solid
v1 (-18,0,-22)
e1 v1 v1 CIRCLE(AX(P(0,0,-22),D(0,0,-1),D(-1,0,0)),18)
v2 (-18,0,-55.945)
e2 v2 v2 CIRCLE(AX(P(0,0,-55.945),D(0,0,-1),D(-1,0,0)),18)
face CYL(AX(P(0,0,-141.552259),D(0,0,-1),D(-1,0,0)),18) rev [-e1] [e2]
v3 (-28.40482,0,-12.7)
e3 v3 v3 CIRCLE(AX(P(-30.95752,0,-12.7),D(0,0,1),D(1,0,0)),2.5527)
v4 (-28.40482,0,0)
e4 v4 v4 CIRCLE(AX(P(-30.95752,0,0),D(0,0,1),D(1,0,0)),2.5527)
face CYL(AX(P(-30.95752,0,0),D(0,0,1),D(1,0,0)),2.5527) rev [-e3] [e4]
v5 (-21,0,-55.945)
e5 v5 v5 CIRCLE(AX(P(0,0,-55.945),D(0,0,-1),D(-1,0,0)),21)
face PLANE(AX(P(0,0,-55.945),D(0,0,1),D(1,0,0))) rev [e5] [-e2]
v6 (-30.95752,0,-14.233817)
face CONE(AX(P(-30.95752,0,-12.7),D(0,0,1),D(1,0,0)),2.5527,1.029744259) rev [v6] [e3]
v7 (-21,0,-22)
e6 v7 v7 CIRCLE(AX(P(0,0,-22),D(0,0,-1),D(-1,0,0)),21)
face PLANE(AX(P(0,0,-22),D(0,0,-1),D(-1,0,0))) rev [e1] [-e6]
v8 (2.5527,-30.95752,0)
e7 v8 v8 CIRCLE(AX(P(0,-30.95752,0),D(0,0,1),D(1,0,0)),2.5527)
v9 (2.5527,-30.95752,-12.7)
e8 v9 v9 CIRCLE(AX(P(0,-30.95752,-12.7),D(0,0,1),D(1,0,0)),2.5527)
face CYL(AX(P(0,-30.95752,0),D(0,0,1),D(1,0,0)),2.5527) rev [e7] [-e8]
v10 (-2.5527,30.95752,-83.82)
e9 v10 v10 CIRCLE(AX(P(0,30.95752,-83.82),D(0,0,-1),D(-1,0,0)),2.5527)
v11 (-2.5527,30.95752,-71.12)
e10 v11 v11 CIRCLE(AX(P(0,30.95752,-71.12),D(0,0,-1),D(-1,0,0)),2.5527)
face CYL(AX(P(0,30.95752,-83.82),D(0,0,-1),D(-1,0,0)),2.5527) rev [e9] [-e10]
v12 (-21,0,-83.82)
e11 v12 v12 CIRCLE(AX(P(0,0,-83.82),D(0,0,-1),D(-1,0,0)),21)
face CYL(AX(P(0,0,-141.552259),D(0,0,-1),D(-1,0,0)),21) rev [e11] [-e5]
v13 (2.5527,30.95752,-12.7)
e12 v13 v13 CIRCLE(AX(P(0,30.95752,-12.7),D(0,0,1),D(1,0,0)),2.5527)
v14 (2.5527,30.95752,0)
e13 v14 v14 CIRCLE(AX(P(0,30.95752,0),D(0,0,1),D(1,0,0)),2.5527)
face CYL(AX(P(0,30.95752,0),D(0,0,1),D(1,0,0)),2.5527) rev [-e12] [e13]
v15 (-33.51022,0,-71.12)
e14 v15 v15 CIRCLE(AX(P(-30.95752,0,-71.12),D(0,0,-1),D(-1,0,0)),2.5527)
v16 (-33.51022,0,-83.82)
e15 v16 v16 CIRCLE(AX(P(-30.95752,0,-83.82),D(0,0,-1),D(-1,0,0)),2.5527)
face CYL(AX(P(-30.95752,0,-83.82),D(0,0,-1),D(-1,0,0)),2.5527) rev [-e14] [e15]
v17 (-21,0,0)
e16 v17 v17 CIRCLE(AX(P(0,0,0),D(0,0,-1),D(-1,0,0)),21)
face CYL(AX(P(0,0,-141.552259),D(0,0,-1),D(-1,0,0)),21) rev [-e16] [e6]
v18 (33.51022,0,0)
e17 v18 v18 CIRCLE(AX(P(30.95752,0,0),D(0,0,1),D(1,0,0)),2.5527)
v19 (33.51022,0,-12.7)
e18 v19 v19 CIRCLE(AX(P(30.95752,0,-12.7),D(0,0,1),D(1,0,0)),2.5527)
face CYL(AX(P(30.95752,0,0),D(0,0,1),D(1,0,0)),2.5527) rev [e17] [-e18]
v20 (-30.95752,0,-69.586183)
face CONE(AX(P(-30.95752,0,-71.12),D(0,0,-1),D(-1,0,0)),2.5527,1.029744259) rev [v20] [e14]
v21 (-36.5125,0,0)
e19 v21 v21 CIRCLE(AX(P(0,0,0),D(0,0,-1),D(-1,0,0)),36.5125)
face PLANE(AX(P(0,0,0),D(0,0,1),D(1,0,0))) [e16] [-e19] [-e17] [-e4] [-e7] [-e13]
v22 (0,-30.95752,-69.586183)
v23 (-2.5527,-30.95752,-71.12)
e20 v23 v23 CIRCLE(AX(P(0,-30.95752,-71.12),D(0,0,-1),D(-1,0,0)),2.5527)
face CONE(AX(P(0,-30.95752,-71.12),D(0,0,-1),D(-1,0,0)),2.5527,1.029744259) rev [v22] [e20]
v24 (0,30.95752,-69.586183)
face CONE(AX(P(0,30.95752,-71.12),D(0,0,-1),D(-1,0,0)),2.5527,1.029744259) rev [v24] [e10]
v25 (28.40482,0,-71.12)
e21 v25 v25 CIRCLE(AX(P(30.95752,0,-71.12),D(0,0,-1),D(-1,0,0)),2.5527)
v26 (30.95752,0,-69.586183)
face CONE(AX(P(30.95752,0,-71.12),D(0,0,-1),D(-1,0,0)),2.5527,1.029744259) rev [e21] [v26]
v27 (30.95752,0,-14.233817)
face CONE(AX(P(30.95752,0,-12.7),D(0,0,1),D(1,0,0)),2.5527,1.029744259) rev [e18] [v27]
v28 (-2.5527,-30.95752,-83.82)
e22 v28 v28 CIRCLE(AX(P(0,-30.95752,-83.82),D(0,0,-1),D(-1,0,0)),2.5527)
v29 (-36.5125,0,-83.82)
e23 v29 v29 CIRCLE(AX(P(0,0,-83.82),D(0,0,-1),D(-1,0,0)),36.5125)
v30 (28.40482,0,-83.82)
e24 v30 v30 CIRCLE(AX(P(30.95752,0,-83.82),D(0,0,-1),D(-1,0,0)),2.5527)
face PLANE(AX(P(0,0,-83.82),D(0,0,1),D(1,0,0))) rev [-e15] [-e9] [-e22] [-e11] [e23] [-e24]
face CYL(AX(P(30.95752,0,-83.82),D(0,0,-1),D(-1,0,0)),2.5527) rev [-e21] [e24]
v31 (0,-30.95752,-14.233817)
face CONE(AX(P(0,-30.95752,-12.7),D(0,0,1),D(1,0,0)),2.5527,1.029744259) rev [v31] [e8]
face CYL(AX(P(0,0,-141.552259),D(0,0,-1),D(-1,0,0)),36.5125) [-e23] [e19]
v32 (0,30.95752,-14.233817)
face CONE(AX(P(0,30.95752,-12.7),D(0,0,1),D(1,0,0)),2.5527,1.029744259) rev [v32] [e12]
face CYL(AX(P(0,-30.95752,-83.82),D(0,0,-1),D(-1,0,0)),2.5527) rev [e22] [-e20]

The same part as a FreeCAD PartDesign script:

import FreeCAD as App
import Part
import Sketcher
from FreeCAD import Vector
Q = App.Units.Quantity

doc = App.newDocument("Part")
body = doc.addObject("PartDesign::Body", "Body")

# Sketch on YZ plane
sketch1 = doc.addObject("Sketcher::SketchObject", "Sketch")
body.addObject(sketch1)
sketch1.AttachmentSupport = (doc.YZ_Plane, [""])
sketch1.MapMode = "FlatFace"
sketch1.addGeometry([
    Part.LineSegment(Vector(36.5, -83.8, 0), Vector(36.5, 0, 0)),  # 0
    Part.LineSegment(Vector(36.5, 0, 0), Vector(21, 0, 0)),  # 1
    Part.LineSegment(Vector(21, 0, 0), Vector(21, -22, 0)),  # 2
    Part.LineSegment(Vector(21, -22, 0), Vector(18, -22, 0)),  # 3
    Part.LineSegment(Vector(18, -22, 0), Vector(18, -55.9, 0)),  # 4
    Part.LineSegment(Vector(18, -55.9, 0), Vector(21, -55.9, 0)),  # 5
    Part.LineSegment(Vector(21, -55.9, 0), Vector(21, -83.8, 0)),  # 6
    Part.LineSegment(Vector(21, -83.8, 0), Vector(36.5, -83.8, 0)),  # 7
], False)
sketch1.addConstraint([
    Sketcher.Constraint("Coincident", 0, 2, 1, 1),
    Sketcher.Constraint("Coincident", 1, 2, 2, 1),
    Sketcher.Constraint("Coincident", 2, 2, 3, 1),
    Sketcher.Constraint("Coincident", 3, 2, 4, 1),
    Sketcher.Constraint("Coincident", 4, 2, 5, 1),
    Sketcher.Constraint("Coincident", 5, 2, 6, 1),
    Sketcher.Constraint("Coincident", 6, 2, 7, 1),
    Sketcher.Constraint("Coincident", 7, 2, 0, 1),
    Sketcher.Constraint("Vertical", 0),
    Sketcher.Constraint("Horizontal", 1),
    Sketcher.Constraint("Vertical", 2),
    Sketcher.Constraint("Horizontal", 3),
    Sketcher.Constraint("Vertical", 4),
    Sketcher.Constraint("Horizontal", 5),
    Sketcher.Constraint("Vertical", 6),
    Sketcher.Constraint("Horizontal", 7),
    Sketcher.Constraint("PointOnObject", 0, 2, -1),
    Sketcher.Constraint("Vertical", 2, 2, 5, 2),
    Sketcher.Constraint("DistanceX", 3, 2, 3, 1, Q("3 mm")),
    Sketcher.Constraint("DistanceY", 2, 2, 2, 1, Q("22 mm")),
    Sketcher.Constraint("DistanceX", -1, 1, 1, 2, Q("21 mm")),
    Sketcher.Constraint("DistanceY", 0, 1, 0, 2, Q("83.82 mm")),
    Sketcher.Constraint("DistanceY", 4, 2, 4, 1, Q("33.945 mm")),
    Sketcher.Constraint("DistanceX", 1, 2, 1, 1, Q("15.5125 mm")),
])
revolution = doc.addObject("PartDesign::Revolution", "Revolution")
body.addObject(revolution)
revolution.Profile = sketch1
revolution.ReferenceAxis = (sketch1, ["V_Axis"])
revolution.Angle = 360

# Sketch on YZ plane
sketch2 = doc.addObject("Sketcher::SketchObject", "Sketch001")
body.addObject(sketch2)
sketch2.AttachmentSupport = (doc.YZ_Plane, [""])
sketch2.MapMode = "FlatFace"
sketch2.addGeometry([
    Part.LineSegment(Vector(31, -14.2, 0), Vector(31, 0, 0)),
    Part.LineSegment(Vector(31, 0, 0), Vector(28.4, 0, 0)),
    Part.LineSegment(Vector(28.4, 0, 0), Vector(28.4, -12.7, 0)),
    Part.LineSegment(Vector(28.4, -12.7, 0), Vector(31, -14.2, 0)),
], False)
sketch2.addGeometry(Part.LineSegment(Vector(31, 0, 0), Vector(31, -14.2, 0)), True)  # axis
sketch2.addConstraint([
    Sketcher.Constraint("Coincident", 0, 2, 1, 1),
    Sketcher.Constraint("Coincident", 1, 2, 2, 1),
    Sketcher.Constraint("Coincident", 2, 2, 3, 1),
    Sketcher.Constraint("Coincident", 3, 2, 0, 1),
    Sketcher.Constraint("Vertical", 0),
    Sketcher.Constraint("Horizontal", 1),
    Sketcher.Constraint("Vertical", 2),
    Sketcher.Constraint("Vertical", 4),
    Sketcher.Constraint("Coincident", 4, 1, 0, 2),
    Sketcher.Constraint("PointOnObject", 0, 2, -1),
    Sketcher.Constraint("Equal", 0, 4),
    Sketcher.Constraint("Angle", 3, Q("-31 deg")),
    Sketcher.Constraint("DistanceY", 2, 2, 2, 1, Q("12.7 mm")),
    Sketcher.Constraint("DistanceX", 1, 2, 1, 1, Q("2.5527 mm")),
    Sketcher.Constraint("DistanceX", -1, 1, 0, 2, Q("30.95752 mm")),
])
groove = doc.addObject("PartDesign::Groove", "Groove")
body.addObject(groove)
groove.Profile = sketch2
groove.ReferenceAxis = (sketch2, ["Axis0"])
groove.Angle = 360
doc.recompute()

datumline = doc.addObject("PartDesign::Line", "DatumLine")
body.addObject(datumline)
datumline.Placement = App.Placement(Vector(0, 0, 0), App.Rotation(Vector(0, 0, 1), Vector(0.707106781, -0.707106781, 0)))
linearpattern = doc.addObject("PartDesign::LinearPattern", "LinearPattern")
body.addObject(linearpattern)
linearpattern.Originals = [groove]
linearpattern.Direction = (datumline, [""])
linearpattern.Mode = "offset"
linearpattern.Offset = 43.780545
linearpattern.Occurrences = 2
body.Tip = linearpattern
doc.recompute()

linearpattern2 = doc.addObject("PartDesign::LinearPattern", "LinearPattern001")
body.addObject(linearpattern2)
linearpattern2.Originals = [groove]
linearpattern2.Direction = (doc.Y_Axis, [""])
linearpattern2.Mode = "offset"
linearpattern2.Offset = 61.91504
linearpattern2.Occurrences = 2
linearpattern2.Reversed = True
body.Tip = linearpattern2
doc.recompute()

datumline2 = doc.addObject("PartDesign::Line", "DatumLine001")
body.addObject(datumline2)
datumline2.Placement = App.Placement(Vector(0, 0, 0), App.Rotation(Vector(0, 0, 1), Vector(-0.707106781, -0.707106781, 0)))
linearpattern3 = doc.addObject("PartDesign::LinearPattern", "LinearPattern002")
body.addObject(linearpattern3)
linearpattern3.Originals = [groove]
linearpattern3.Direction = (datumline2, [""])
linearpattern3.Mode = "offset"
linearpattern3.Offset = 43.780545
linearpattern3.Occurrences = 2
body.Tip = linearpattern3
doc.recompute()

datumplane = doc.addObject("PartDesign::Plane", "DatumPlane")
body.addObject(datumplane)
datumplane.AttachmentSupport = (doc.XY_Plane, [""])
datumplane.MapMode = "FlatFace"
datumplane.AttachmentOffset = App.Placement(Vector(0, 0, -41.91), App.Rotation())
mirrored = doc.addObject("PartDesign::Mirrored", "Mirrored")
body.addObject(mirrored)
mirrored.Originals = [groove]
mirrored.MirrorPlane = (datumplane, [""])
body.Tip = mirrored

# Sketch on YZ plane
sketch3 = doc.addObject("Sketcher::SketchObject", "Sketch002")
body.addObject(sketch3)
sketch3.AttachmentSupport = (doc.YZ_Plane, [""])
sketch3.MapMode = "FlatFace"
sketch3.AttachmentOffset = App.Placement(Vector(0, 0, 30.95752), App.Rotation())
sketch3.addGeometry([
    Part.LineSegment(Vector(0, -83.8, 0), Vector(0, -69.6, 0)),
    Part.LineSegment(Vector(0, -69.6, 0), Vector(-2.6, -71.1, 0)),
    Part.LineSegment(Vector(-2.6, -71.1, 0), Vector(-2.6, -83.8, 0)),
    Part.LineSegment(Vector(-2.6, -83.8, 0), Vector(0, -83.8, 0)),
], False)
sketch3.addConstraint([
    Sketcher.Constraint("Coincident", 0, 2, 1, 1),
    Sketcher.Constraint("Coincident", 1, 2, 2, 1),
    Sketcher.Constraint("Coincident", 2, 2, 3, 1),
    Sketcher.Constraint("Coincident", 3, 2, 0, 1),
    Sketcher.Constraint("Vertical", 0),
    Sketcher.Constraint("Vertical", 2),
    Sketcher.Constraint("Horizontal", 3),
    Sketcher.Constraint("PointOnObject", 0, 2, -2),
    Sketcher.Constraint("Angle", 1, Q("-149 deg")),
    Sketcher.Constraint("DistanceY", 2, 2, 2, 1, Q("12.7 mm")),
    Sketcher.Constraint("DistanceY", 1, 2, -1, 1, Q("71.12 mm")),
    Sketcher.Constraint("DistanceX", 3, 1, 3, 2, Q("2.5527 mm")),
])
groove2 = doc.addObject("PartDesign::Groove", "Groove001")
body.addObject(groove2)
groove2.Profile = sketch3
groove2.ReferenceAxis = (sketch3, ["V_Axis"])
groove2.Angle = 360

# Sketch on YZ plane
sketch4 = doc.addObject("Sketcher::SketchObject", "Sketch003")
body.addObject(sketch4)
sketch4.AttachmentSupport = (doc.YZ_Plane, [""])
sketch4.MapMode = "FlatFace"
sketch4.addGeometry([
    Part.LineSegment(Vector(-31, -83.8, 0), Vector(-31, -69.6, 0)),
    Part.LineSegment(Vector(-31, -69.6, 0), Vector(-33.5, -71.1, 0)),
    Part.LineSegment(Vector(-33.5, -71.1, 0), Vector(-33.5, -83.8, 0)),
    Part.LineSegment(Vector(-33.5, -83.8, 0), Vector(-31, -83.8, 0)),
], False)
sketch4.addGeometry(Part.LineSegment(Vector(-31, -69.6, 0), Vector(-31, -83.8, 0)), True)  # axis
sketch4.addConstraint([
    Sketcher.Constraint("Coincident", 0, 2, 1, 1),
    Sketcher.Constraint("Coincident", 1, 2, 2, 1),
    Sketcher.Constraint("Coincident", 2, 2, 3, 1),
    Sketcher.Constraint("Coincident", 3, 2, 0, 1),
    Sketcher.Constraint("Vertical", 0),
    Sketcher.Constraint("Vertical", 2),
    Sketcher.Constraint("Horizontal", 3),
    Sketcher.Constraint("Vertical", 4),
    Sketcher.Constraint("Coincident", 4, 1, 0, 2),
    Sketcher.Constraint("Horizontal", 2, 2, 4, 2),
    Sketcher.Constraint("Angle", 1, Q("-149 deg")),
    Sketcher.Constraint("DistanceY", 2, 2, 2, 1, Q("12.7 mm")),
    Sketcher.Constraint("DistanceY", 1, 2, -1, 1, Q("71.12 mm")),
    Sketcher.Constraint("DistanceX", 3, 1, 3, 2, Q("2.5527 mm")),
    Sketcher.Constraint("DistanceX", 0, 2, -1, 1, Q("30.95752 mm")),
])
groove3 = doc.addObject("PartDesign::Groove", "Groove002")
body.addObject(groove3)
groove3.Profile = sketch4
groove3.ReferenceAxis = (sketch4, ["Axis0"])
groove3.Angle = 360

# Sketch on YZ plane
sketch5 = doc.addObject("Sketcher::SketchObject", "Sketch004")
body.addObject(sketch5)
sketch5.AttachmentSupport = (doc.YZ_Plane, [""])
sketch5.MapMode = "FlatFace"
sketch5.AttachmentOffset = App.Placement(Vector(0, 0, -30.95752), App.Rotation())
sketch5.addGeometry([
    Part.LineSegment(Vector(0, -83.8, 0), Vector(0, -69.6, 0)),
    Part.LineSegment(Vector(0, -69.6, 0), Vector(-2.6, -71.1, 0)),
    Part.LineSegment(Vector(-2.6, -71.1, 0), Vector(-2.6, -83.8, 0)),
    Part.LineSegment(Vector(-2.6, -83.8, 0), Vector(0, -83.8, 0)),
], False)
sketch5.addConstraint([
    Sketcher.Constraint("Coincident", 0, 2, 1, 1),
    Sketcher.Constraint("Coincident", 1, 2, 2, 1),
    Sketcher.Constraint("Coincident", 2, 2, 3, 1),
    Sketcher.Constraint("Coincident", 3, 2, 0, 1),
    Sketcher.Constraint("Vertical", 0),
    Sketcher.Constraint("Vertical", 2),
    Sketcher.Constraint("Horizontal", 3),
    Sketcher.Constraint("PointOnObject", 0, 2, -2),
    Sketcher.Constraint("Angle", 1, Q("-149 deg")),
    Sketcher.Constraint("DistanceY", 2, 2, 2, 1, Q("12.7 mm")),
    Sketcher.Constraint("DistanceY", 1, 2, -1, 1, Q("71.12 mm")),
    Sketcher.Constraint("DistanceX", 3, 1, 3, 2, Q("2.5527 mm")),
])
groove4 = doc.addObject("PartDesign::Groove", "Groove003")
body.addObject(groove4)
groove4.Profile = sketch5
groove4.ReferenceAxis = (sketch5, ["V_Axis"])
groove4.Angle = 360

doc.recompute()
